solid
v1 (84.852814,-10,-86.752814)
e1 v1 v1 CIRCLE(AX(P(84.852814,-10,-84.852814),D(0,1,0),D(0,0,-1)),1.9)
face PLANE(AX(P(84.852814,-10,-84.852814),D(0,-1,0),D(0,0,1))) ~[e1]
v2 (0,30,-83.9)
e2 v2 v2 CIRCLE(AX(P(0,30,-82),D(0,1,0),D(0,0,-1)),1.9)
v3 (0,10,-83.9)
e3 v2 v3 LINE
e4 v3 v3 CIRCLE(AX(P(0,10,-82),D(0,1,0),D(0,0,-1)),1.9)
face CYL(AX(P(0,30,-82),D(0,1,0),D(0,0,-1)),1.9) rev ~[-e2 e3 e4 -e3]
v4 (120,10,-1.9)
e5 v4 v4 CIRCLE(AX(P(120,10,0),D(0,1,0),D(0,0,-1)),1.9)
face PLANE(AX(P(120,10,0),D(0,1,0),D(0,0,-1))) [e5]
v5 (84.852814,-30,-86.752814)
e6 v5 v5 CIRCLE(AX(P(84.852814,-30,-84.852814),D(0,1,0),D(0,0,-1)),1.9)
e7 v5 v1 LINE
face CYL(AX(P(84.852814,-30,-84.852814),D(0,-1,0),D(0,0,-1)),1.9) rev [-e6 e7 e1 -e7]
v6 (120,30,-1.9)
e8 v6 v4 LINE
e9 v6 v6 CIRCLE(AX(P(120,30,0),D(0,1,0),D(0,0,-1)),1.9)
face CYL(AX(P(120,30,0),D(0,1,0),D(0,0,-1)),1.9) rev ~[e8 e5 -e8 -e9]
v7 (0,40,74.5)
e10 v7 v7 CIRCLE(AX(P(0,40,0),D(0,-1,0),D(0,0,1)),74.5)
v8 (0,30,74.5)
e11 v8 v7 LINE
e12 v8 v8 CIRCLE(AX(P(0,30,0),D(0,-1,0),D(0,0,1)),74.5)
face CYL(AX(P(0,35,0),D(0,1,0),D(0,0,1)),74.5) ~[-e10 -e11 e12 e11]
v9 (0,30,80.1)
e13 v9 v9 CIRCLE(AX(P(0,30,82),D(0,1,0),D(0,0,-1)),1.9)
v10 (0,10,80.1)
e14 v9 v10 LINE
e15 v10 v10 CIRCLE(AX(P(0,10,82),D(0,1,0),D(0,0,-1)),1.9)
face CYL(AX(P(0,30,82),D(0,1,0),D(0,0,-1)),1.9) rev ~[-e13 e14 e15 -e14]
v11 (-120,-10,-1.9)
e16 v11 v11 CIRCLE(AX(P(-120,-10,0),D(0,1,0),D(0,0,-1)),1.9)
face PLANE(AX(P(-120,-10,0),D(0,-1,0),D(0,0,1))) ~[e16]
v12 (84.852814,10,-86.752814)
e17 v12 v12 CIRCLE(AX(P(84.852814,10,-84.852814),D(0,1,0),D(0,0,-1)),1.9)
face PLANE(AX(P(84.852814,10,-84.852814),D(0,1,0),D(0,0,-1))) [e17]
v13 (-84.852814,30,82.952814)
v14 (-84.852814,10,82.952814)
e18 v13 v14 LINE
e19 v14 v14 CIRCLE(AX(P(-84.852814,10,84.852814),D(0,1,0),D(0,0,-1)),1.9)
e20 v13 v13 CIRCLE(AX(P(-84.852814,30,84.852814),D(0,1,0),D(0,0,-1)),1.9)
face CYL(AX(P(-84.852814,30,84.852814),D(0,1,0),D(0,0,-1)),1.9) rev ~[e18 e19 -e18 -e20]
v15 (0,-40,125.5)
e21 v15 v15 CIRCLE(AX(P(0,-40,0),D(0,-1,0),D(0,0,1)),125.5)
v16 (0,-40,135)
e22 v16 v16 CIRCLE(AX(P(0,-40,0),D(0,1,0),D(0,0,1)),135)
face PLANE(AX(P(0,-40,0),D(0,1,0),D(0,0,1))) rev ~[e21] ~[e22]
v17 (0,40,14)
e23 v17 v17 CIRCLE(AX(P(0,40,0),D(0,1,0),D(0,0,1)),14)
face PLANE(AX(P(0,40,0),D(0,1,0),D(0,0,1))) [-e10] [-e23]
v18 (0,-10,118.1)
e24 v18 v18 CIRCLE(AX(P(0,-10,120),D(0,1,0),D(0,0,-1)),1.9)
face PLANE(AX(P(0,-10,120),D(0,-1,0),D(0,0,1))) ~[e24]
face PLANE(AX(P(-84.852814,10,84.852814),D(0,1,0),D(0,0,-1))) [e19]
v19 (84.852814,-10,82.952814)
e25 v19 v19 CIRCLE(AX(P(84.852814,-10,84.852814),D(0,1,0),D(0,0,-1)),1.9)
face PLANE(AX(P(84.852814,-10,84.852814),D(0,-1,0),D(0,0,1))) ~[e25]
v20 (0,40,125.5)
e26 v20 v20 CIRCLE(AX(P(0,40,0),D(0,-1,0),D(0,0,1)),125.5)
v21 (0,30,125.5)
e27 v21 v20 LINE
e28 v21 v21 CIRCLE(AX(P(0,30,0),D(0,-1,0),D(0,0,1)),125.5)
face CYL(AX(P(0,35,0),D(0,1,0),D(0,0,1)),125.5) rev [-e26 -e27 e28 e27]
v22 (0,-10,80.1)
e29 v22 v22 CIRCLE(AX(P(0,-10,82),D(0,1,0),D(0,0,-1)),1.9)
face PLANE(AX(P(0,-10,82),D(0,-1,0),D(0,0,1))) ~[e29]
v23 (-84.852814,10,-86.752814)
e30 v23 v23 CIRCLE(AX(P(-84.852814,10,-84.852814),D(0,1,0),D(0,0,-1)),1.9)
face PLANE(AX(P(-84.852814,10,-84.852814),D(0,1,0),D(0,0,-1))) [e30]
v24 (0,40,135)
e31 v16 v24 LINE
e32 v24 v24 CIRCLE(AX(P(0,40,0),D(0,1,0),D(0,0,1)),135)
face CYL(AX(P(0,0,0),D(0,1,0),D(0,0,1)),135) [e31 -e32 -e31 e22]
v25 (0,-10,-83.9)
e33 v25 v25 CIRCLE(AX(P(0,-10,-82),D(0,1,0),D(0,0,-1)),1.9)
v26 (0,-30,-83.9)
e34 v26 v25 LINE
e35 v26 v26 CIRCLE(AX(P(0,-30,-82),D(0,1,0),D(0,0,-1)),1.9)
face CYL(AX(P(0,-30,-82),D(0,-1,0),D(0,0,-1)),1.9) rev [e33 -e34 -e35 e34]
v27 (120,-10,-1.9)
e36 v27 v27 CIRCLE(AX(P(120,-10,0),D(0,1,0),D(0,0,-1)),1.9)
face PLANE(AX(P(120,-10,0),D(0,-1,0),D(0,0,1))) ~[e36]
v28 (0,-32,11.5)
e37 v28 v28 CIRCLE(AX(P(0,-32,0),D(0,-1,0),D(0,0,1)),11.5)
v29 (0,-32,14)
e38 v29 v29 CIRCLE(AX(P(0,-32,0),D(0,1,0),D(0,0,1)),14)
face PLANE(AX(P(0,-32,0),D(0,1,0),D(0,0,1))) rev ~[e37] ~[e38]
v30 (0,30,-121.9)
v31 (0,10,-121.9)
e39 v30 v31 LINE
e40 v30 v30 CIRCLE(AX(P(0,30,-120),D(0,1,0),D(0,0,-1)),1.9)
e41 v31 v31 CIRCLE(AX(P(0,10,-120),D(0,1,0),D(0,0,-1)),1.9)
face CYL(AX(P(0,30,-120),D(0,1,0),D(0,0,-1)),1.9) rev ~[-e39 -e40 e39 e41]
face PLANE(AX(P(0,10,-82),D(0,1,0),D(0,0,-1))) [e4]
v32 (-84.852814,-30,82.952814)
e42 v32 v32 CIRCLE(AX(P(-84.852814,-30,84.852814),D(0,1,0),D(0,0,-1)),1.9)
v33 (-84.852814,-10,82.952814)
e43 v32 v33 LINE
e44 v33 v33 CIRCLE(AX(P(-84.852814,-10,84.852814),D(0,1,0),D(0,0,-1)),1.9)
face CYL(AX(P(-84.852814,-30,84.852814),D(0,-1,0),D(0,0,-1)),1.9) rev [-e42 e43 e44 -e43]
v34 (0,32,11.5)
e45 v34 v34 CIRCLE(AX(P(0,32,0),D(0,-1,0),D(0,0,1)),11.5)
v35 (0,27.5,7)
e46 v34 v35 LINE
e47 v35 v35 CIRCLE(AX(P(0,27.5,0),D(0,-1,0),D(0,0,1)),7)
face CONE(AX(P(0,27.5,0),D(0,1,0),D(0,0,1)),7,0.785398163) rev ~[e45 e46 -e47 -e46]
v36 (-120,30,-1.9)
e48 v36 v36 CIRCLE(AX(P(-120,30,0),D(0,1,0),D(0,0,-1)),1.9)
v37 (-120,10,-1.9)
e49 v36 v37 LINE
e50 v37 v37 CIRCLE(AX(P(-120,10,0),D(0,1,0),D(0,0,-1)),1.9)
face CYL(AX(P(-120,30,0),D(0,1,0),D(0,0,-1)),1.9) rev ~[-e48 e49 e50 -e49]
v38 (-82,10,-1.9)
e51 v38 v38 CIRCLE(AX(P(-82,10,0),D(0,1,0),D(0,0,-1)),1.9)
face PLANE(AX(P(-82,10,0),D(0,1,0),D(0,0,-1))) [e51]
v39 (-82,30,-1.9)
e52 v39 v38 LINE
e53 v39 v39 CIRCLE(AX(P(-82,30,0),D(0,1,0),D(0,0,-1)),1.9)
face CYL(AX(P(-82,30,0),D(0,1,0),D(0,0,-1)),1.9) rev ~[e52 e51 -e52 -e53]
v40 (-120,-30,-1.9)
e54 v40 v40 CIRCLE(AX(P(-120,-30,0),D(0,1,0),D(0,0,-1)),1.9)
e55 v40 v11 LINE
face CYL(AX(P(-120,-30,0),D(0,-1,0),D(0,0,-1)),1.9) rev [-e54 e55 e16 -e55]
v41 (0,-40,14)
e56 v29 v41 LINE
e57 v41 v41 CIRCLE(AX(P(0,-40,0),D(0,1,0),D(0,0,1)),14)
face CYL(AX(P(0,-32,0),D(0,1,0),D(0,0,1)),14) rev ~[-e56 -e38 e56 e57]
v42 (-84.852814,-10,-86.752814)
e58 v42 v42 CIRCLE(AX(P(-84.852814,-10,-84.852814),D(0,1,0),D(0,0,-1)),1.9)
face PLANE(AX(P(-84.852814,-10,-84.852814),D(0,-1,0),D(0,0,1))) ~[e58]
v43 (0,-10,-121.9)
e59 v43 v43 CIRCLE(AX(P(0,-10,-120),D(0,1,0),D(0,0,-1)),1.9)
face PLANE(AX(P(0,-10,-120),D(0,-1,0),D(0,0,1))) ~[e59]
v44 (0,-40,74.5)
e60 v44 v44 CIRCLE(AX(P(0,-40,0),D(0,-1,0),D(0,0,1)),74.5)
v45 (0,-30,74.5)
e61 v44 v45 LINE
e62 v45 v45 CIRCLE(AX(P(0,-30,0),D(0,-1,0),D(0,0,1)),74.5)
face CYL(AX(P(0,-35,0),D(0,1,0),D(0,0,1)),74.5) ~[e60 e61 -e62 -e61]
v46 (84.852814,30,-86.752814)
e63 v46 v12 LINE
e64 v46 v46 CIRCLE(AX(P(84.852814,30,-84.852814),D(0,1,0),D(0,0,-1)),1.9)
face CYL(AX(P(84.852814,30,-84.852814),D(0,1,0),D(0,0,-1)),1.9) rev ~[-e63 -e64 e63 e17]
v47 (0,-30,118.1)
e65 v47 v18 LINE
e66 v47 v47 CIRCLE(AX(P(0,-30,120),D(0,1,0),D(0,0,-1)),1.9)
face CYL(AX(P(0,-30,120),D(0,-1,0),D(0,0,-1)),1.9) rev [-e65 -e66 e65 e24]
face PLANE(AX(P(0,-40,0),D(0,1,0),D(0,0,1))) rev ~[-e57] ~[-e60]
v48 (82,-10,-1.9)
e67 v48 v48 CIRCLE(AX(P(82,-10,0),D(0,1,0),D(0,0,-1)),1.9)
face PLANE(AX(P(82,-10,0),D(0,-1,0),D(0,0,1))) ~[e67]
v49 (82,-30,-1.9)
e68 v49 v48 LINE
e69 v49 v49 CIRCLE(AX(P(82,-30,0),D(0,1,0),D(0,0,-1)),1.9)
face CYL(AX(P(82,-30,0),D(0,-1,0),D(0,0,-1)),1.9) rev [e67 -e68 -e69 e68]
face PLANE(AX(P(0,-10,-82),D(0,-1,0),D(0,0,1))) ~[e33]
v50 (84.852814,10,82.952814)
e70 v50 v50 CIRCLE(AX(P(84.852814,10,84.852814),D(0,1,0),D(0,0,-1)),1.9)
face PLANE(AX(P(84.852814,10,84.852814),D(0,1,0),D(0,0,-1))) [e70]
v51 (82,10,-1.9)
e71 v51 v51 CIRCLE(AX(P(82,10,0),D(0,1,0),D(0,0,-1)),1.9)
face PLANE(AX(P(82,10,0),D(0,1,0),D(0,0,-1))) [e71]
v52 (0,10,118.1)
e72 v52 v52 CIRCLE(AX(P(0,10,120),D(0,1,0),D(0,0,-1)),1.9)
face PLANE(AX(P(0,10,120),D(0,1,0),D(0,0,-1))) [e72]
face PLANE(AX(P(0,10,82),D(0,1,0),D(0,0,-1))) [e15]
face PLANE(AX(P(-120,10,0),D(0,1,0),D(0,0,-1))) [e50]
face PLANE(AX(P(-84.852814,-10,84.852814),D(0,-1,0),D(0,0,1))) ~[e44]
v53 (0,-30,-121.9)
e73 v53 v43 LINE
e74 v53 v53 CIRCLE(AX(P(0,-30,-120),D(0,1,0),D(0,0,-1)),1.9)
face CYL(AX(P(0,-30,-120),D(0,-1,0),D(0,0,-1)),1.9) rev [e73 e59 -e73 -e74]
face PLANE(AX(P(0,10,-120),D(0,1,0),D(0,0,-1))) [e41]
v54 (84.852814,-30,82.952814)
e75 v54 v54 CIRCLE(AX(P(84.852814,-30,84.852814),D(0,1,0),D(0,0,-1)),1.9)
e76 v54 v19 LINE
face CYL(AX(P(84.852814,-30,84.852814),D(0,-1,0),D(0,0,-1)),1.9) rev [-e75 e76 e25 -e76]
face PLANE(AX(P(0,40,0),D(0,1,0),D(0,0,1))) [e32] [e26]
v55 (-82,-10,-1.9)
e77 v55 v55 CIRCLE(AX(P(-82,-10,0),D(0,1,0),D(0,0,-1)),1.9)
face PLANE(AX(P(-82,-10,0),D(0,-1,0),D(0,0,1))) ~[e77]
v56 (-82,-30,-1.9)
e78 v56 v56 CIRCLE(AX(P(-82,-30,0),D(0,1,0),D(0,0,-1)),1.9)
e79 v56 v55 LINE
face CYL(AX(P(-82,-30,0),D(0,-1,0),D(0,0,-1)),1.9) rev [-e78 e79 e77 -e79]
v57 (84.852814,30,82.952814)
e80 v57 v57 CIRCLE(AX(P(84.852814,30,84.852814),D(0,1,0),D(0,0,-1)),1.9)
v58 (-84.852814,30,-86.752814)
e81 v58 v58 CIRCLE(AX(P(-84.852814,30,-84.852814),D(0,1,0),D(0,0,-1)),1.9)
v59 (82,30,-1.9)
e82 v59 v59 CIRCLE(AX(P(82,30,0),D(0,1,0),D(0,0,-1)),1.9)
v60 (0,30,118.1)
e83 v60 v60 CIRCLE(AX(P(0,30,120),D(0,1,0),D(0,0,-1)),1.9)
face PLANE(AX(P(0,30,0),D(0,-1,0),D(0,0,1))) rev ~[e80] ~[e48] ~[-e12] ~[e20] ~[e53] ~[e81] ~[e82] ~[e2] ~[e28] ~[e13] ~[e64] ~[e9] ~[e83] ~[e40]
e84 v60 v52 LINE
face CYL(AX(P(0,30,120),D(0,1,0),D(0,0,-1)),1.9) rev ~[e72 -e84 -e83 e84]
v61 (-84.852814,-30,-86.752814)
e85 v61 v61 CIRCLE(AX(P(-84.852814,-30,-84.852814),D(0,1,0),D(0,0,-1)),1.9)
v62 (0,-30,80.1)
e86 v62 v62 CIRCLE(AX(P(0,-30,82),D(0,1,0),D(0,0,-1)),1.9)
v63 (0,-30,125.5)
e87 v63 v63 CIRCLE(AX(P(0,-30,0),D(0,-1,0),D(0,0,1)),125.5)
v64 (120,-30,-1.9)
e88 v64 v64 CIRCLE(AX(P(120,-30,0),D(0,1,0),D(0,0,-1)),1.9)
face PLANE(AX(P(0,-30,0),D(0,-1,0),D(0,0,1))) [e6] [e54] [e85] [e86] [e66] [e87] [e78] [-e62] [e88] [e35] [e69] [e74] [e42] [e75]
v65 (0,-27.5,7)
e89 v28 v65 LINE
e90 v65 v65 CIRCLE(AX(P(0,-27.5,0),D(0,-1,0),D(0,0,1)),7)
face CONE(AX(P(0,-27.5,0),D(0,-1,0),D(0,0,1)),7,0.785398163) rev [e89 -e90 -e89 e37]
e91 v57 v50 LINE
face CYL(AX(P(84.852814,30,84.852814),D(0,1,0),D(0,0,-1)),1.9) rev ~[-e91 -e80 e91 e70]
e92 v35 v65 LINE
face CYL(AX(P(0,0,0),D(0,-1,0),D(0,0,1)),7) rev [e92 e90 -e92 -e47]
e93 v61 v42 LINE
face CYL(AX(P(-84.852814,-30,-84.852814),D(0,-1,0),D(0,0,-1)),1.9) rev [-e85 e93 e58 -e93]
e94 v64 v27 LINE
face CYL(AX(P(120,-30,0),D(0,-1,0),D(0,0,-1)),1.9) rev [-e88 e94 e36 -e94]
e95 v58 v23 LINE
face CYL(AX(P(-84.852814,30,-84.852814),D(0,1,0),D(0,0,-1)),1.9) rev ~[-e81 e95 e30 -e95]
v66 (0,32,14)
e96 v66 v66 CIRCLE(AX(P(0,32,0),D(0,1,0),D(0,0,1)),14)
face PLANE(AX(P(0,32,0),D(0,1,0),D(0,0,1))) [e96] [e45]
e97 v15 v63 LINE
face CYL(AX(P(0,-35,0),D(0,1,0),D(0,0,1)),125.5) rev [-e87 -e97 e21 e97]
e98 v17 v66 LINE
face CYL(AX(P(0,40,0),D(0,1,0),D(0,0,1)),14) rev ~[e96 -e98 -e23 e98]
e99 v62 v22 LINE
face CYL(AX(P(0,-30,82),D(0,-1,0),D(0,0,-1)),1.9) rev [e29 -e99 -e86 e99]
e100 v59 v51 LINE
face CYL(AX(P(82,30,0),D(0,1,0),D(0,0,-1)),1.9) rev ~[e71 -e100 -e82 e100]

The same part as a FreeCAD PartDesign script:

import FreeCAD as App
import Part
import Sketcher

V = App.Vector
Q = App.Units.Quantity


def edges_at(feature, points):
    """Names of the edges that pass closest to the given points."""
    edges = feature.Shape.Edges
    near = lambda p: min(range(len(edges)), key=lambda i: edges[i].distToShape(Part.Vertex(*p))[0])
    return sorted({f"Edge{near(p) + 1}" for p in points})


def add_polygon(sketch, points):
    """Adds a closed chain of lines whose ends are joined by coincident constraints."""
    first, n = sketch.GeometryCount, len(points)
    for a, b in zip(points, points[1:] + points[:1]):
        sketch.addGeometry(Part.LineSegment(App.Vector(*a, 0), App.Vector(*b, 0)), False)
    for i in range(n):
        sketch.addConstraint(Sketcher.Constraint("Coincident", first + i, 2, first + (i + 1) % n, 1))

doc = App.newDocument("Part")
body = doc.addObject("PartDesign::Body", "Body")

# Sketch on XZ plane
sketch1 = body.newObject("Sketcher::SketchObject", "Sketch")
sketch1.AttachmentSupport = (doc.getObject("XZ_Plane"), [""])
sketch1.MapMode = "FlatFace"
sketch1.addGeometry([
    Part.Circle(V(0, 0, 0), V(0, 0, 1), 135),
    Part.Circle(V(0, 0, 0), V(0, 0, 1), 7),
], False)
sketch1.addConstraint([
    Sketcher.Constraint("Coincident", 0, 3, -1, 1),
    Sketcher.Constraint("Coincident", 1, 3, -1, 1),
    Sketcher.Constraint("Diameter", 0, Q("270 mm")),
    Sketcher.Constraint("Diameter", 1, Q("14 mm")),
])
pad1 = body.newObject("PartDesign::Pad", "Pad")
pad1.Profile = sketch1
pad1.Length = 80
pad1.Midplane = True

# Sketch on XZ plane
sketch2 = body.newObject("Sketcher::SketchObject", "Sketch001")
sketch2.AttachmentSupport = (doc.getObject("XZ_Plane"), [""])
sketch2.MapMode = "FlatFace"
sketch2.AttachmentOffset = App.Placement(V(0, 0, -40), App.Rotation())
sketch2.addGeometry(Part.Circle(V(0, 0, 0), V(0, 0, 1), 14), False)
sketch2.addConstraint([
    Sketcher.Constraint("Coincident", 0, 3, -1, 1),
    Sketcher.Constraint("Diameter", 0, Q("28 mm")),
])
pocket1 = body.newObject("PartDesign::Pocket", "Pocket")
pocket1.Profile = sketch2
pocket1.Length = 8
pocket1.Reversed = True

# Sketch on XZ plane
sketch3 = body.newObject("Sketcher::SketchObject", "Sketch002")
sketch3.AttachmentSupport = (doc.getObject("XZ_Plane"), [""])
sketch3.MapMode = "FlatFace"
sketch3.AttachmentOffset = App.Placement(V(0, 0, 32), App.Rotation())
sketch3.addGeometry(Part.Circle(V(0, 0, 0), V(0, 0, 1), 14), False)
sketch3.addConstraint([
    Sketcher.Constraint("Coincident", 0, 3, -1, 1),
    Sketcher.Constraint("Diameter", 0, Q("28 mm")),
])
pocket2 = body.newObject("PartDesign::Pocket", "Pocket001")
pocket2.Profile = sketch3
pocket2.Length = 8
pocket2.Reversed = True
doc.recompute()

chamfer = body.newObject("PartDesign::Chamfer", "Chamfer")
chamfer.Base = (pocket2, edges_at(pocket2, [(0, 32, -7), (0, -32, -7)]))
chamfer.Size = 4.5

# Sketch on YZ plane
sketch4 = body.newObject("Sketcher::SketchObject", "Sketch003")
sketch4.AttachmentSupport = (doc.getObject("YZ_Plane"), [""])
sketch4.MapMode = "FlatFace"
add_polygon(sketch4, [(40, 126), (30, 126), (30, 74), (40, 74)])  # lines 0-3
add_polygon(sketch4, [(-30, 126), (-40, 126), (-40, 74), (-30, 74)])  # lines 4-7
sketch4.addConstraint([
    Sketcher.Constraint("Horizontal", 0),
    Sketcher.Constraint("Vertical", 1),
    Sketcher.Constraint("Horizontal", 2),
    Sketcher.Constraint("Vertical", 3),
    Sketcher.Constraint("Horizontal", 4),
    Sketcher.Constraint("Vertical", 5),
    Sketcher.Constraint("Horizontal", 6),
    Sketcher.Constraint("Vertical", 7),
    Sketcher.Constraint("Symmetric", 3, 2, 4, 2, -2),
    Sketcher.Constraint("Symmetric", 1, 2, 6, 2, -2),
    Sketcher.Constraint("DistanceX", 0, 2, 0, 1, Q("10 mm")),
    Sketcher.Constraint("DistanceY", 1, 2, 1, 1, Q("51 mm")),
    Sketcher.Constraint("DistanceX", -1, 1, 0, 2, Q("30 mm")),
    Sketcher.Constraint("DistanceY", -1, 1, 0, 2, Q("125.5 mm")),
])
groove = body.newObject("PartDesign::Groove", "Groove")
groove.Profile = sketch4
groove.ReferenceAxis = (sketch4, ["H_Axis"])
groove.Angle = 360

# Sketch on XZ plane
sketch5 = body.newObject("Sketcher::SketchObject", "Sketch004")
sketch5.AttachmentSupport = (doc.getObject("XZ_Plane"), [""])
sketch5.MapMode = "FlatFace"
sketch5.AttachmentOffset = App.Placement(V(0, 0, -30), App.Rotation())
sketch5.addGeometry([
    Part.Circle(V(0, -120, 0), V(0, 0, 1), 1.9),  # 0
    Part.Circle(V(84.9, -84.9, 0), V(0, 0, 1), 1.9),  # 1
    Part.Circle(V(120, 0, 0), V(0, 0, 1), 1.9),  # 2
    Part.Circle(V(84.9, 84.9, 0), V(0, 0, 1), 1.9),  # 3
    Part.Circle(V(0, 120, 0), V(0, 0, 1), 1.9),  # 4
    Part.Circle(V(-84.9, 84.9, 0), V(0, 0, 1), 1.9),  # 5
    Part.Circle(V(-120, 0, 0), V(0, 0, 1), 1.9),  # 6
    Part.Circle(V(-84.9, -84.9, 0), V(0, 0, 1), 1.9),  # 7
    Part.Circle(V(0, -82, 0), V(0, 0, 1), 1.9),  # 8
    Part.Circle(V(82, 0, 0), V(0, 0, 1), 1.9),  # 9
    Part.Circle(V(0, 82, 0), V(0, 0, 1), 1.9),  # 10
    Part.Circle(V(-82, 0, 0), V(0, 0, 1), 1.9),  # 11
], False)
sketch5.addConstraint([
    Sketcher.Constraint("Equal", 0, 1),
    Sketcher.Constraint("Equal", 1, 2),
    Sketcher.Constraint("Equal", 2, 3),
    Sketcher.Constraint("Equal", 3, 4),
    Sketcher.Constraint("Equal", 4, 5),
    Sketcher.Constraint("Equal", 5, 6),
    Sketcher.Constraint("Equal", 6, 7),
    Sketcher.Constraint("Equal", 7, 8),
    Sketcher.Constraint("Equal", 8, 9),
    Sketcher.Constraint("Equal", 9, 10),
    Sketcher.Constraint("Equal", 10, 11),
    Sketcher.Constraint("Symmetric", 0, 3, 4, 3, -1, 1),
    Sketcher.Constraint("Symmetric", 1, 3, 5, 3, -1, 1),
    Sketcher.Constraint("Symmetric", 2, 3, 6, 3, -1, 1),
    Sketcher.Constraint("Symmetric", 3, 3, 7, 3, -1, 1),
    Sketcher.Constraint("Symmetric", 8, 3, 10, 3, -1, 1),
    Sketcher.Constraint("Symmetric", 9, 3, 11, 3, -1, 1),
    Sketcher.Constraint("Symmetric", 3, 3, 5, 3, -2),
    Sketcher.Constraint("PointOnObject", 0, 3, -2),
    Sketcher.Constraint("PointOnObject", 2, 3, -1),
    Sketcher.Constraint("PointOnObject", 8, 3, -2),
    Sketcher.Constraint("PointOnObject", 9, 3, -1),
    Sketcher.Constraint("Diameter", 0, Q("3.8 mm")),
    Sketcher.Constraint("DistanceY", 0, 3, -1, 1, Q("120 mm")),
    Sketcher.Constraint("DistanceX", -1, 1, 2, 3, Q("120 mm")),
    Sketcher.Constraint("DistanceY", 8, 3, -1, 1, Q("82 mm")),
    Sketcher.Constraint("DistanceX", -1, 1, 9, 3, Q("82 mm")),
    Sketcher.Constraint("DistanceX", -1, 1, 1, 3, Q("84.852814 mm")),
    Sketcher.Constraint("DistanceY", 1, 3, -1, 1, Q("84.852814 mm")),
])
pocket3 = body.newObject("PartDesign::Pocket", "Pocket002")
pocket3.Profile = sketch5
pocket3.Length = 20
pocket3.Reversed = True
doc.recompute()

mirrored = body.newObject("PartDesign::Mirrored", "Mirrored")
mirrored.Originals = [pocket3]
mirrored.MirrorPlane = (doc.getObject("XZ_Plane"), [""])
body.Tip = mirrored

doc.recompute()
